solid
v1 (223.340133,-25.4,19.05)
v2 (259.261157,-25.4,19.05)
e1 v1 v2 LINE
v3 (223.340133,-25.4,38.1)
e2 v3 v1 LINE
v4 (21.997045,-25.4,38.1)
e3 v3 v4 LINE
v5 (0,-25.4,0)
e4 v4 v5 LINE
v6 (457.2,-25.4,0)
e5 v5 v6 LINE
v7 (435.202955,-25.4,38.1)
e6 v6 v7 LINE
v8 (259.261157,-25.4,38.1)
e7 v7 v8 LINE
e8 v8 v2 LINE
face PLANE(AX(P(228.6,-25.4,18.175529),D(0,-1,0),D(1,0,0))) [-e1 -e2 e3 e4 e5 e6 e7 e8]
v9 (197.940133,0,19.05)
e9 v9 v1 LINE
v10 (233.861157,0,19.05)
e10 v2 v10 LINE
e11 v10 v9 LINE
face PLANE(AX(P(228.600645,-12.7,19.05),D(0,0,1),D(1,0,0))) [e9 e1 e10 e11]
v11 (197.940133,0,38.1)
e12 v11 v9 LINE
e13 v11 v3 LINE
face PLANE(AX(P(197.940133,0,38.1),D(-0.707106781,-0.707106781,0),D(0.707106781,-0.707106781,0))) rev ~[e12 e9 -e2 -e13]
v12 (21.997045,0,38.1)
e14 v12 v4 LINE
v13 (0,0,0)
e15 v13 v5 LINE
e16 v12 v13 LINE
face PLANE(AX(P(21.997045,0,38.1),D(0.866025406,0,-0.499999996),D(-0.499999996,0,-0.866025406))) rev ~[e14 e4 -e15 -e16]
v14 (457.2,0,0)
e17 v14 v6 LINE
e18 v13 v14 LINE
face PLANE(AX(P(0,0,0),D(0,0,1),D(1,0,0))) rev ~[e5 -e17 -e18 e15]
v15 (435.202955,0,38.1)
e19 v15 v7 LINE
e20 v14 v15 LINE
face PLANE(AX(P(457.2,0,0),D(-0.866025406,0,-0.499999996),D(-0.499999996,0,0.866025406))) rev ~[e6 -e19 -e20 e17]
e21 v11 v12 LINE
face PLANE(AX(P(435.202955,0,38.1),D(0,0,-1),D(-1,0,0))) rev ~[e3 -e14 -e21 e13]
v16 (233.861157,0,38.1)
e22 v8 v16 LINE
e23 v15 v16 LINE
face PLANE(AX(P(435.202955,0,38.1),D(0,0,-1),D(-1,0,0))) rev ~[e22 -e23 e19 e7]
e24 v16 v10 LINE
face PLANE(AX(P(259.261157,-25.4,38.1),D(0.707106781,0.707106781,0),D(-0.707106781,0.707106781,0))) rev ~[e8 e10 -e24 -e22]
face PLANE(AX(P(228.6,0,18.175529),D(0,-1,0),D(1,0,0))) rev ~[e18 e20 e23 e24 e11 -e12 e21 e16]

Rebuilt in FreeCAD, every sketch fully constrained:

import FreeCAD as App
import Part
import Sketcher
from FreeCAD import Vector
Q = App.Units.Quantity

doc = App.newDocument("Part")
body = doc.addObject("PartDesign::Body", "Body")

sketch1 = body.newObject("Sketcher::SketchObject", "Sketch")
sketch1.AttachmentSupport = (doc.getObject("XZ_Plane"), [""])
sketch1.MapMode = "FlatFace"
sketch1.addGeometry(Part.LineSegment(Vector(21.997045, 38.1, 0), Vector(0, 0, 0)), False)
sketch1.addGeometry(Part.LineSegment(Vector(0, 0, 0), Vector(457.2, 0, 0)), False)
sketch1.addGeometry(Part.LineSegment(Vector(457.2, 0, 0), Vector(435.202955, 38.1, 0)), False)
sketch1.addGeometry(Part.LineSegment(Vector(435.202955, 38.1, 0), Vector(21.997045, 38.1, 0)), False)
sketch1.addConstraint(Sketcher.Constraint("Coincident", 0, 2, 1, 1))
sketch1.addConstraint(Sketcher.Constraint("Coincident", 1, 2, 2, 1))
sketch1.addConstraint(Sketcher.Constraint("Coincident", 2, 2, 3, 1))
sketch1.addConstraint(Sketcher.Constraint("Coincident", 3, 2, 0, 1))
sketch1.addConstraint(Sketcher.Constraint("Horizontal", 1))
sketch1.addConstraint(Sketcher.Constraint("Horizontal", 3))
sketch1.addConstraint(Sketcher.Constraint("Coincident", 0, 2, -1, 1))
sketch1.addConstraint(Sketcher.Constraint("Equal", 0, 2))
sketch1.addConstraint(Sketcher.Constraint("DistanceX", 1, 1, 1, 2, Q("18 in")))
sketch1.addConstraint(Sketcher.Constraint("Angle", 0, Q("-120 deg")))
sketch1.addConstraint(Sketcher.Constraint("DistanceY", -1, 1, 2, 2, Q("1.5 in")))
pad1 = body.newObject("PartDesign::Pad", "Pad")
pad1.Profile = sketch1
pad1.Length = Q("1 in")

sketch2 = body.newObject("Sketcher::SketchObject", "Sketch001")
sketch2.AttachmentSupport = (doc.getObject("XY_Plane"), [""])
sketch2.MapMode = "FlatFace"
sketch2.AttachmentOffset = App.Placement(Vector(0, 0, 1.5 * 25.4), App.Rotation())
sketch2.addGeometry(Part.LineSegment(Vector(233.861157, 0, 0), Vector(197.940133, 0, 0)), False)
sketch2.addGeometry(Part.LineSegment(Vector(197.940133, 0, 0), Vector(223.340133, -25.4, 0)), False)
sketch2.addGeometry(Part.LineSegment(Vector(223.340133, -25.4, 0), Vector(259.261157, -25.4, 0)), False)
sketch2.addGeometry(Part.LineSegment(Vector(259.261157, -25.4, 0), Vector(233.861157, 0, 0)), False)
sketch2.addConstraint(Sketcher.Constraint("Coincident", 0, 2, 1, 1))
sketch2.addConstraint(Sketcher.Constraint("Coincident", 1, 2, 2, 1))
sketch2.addConstraint(Sketcher.Constraint("Coincident", 2, 2, 3, 1))
sketch2.addConstraint(Sketcher.Constraint("Coincident", 3, 2, 0, 1))
sketch2.addConstraint(Sketcher.Constraint("Horizontal", 0))
sketch2.addConstraint(Sketcher.Constraint("Horizontal", 2))
sketch2.addConstraint(Sketcher.Constraint("PointOnObject", 0, 2, -1))
sketch2.addConstraint(Sketcher.Constraint("Parallel", 1, 3))
sketch2.addConstraint(Sketcher.Constraint("DistanceY", 1, 2, -1, 1, Q("1 in")))
sketch2.addConstraint(Sketcher.Constraint("Angle", 1, Q("-45 deg")))
sketch2.addConstraint(Sketcher.Constraint("DistanceX", 0, 2, 0, 1, Q("35.921024 mm")))
sketch2.addConstraint(Sketcher.Constraint("DistanceX", -1, 1, 0, 2, Q("197.940133 mm")))
pocket1 = body.newObject("PartDesign::Pocket", "Pocket")
pocket1.Profile = sketch2
pocket1.Length = Q("0.75 in")

doc.recompute()
